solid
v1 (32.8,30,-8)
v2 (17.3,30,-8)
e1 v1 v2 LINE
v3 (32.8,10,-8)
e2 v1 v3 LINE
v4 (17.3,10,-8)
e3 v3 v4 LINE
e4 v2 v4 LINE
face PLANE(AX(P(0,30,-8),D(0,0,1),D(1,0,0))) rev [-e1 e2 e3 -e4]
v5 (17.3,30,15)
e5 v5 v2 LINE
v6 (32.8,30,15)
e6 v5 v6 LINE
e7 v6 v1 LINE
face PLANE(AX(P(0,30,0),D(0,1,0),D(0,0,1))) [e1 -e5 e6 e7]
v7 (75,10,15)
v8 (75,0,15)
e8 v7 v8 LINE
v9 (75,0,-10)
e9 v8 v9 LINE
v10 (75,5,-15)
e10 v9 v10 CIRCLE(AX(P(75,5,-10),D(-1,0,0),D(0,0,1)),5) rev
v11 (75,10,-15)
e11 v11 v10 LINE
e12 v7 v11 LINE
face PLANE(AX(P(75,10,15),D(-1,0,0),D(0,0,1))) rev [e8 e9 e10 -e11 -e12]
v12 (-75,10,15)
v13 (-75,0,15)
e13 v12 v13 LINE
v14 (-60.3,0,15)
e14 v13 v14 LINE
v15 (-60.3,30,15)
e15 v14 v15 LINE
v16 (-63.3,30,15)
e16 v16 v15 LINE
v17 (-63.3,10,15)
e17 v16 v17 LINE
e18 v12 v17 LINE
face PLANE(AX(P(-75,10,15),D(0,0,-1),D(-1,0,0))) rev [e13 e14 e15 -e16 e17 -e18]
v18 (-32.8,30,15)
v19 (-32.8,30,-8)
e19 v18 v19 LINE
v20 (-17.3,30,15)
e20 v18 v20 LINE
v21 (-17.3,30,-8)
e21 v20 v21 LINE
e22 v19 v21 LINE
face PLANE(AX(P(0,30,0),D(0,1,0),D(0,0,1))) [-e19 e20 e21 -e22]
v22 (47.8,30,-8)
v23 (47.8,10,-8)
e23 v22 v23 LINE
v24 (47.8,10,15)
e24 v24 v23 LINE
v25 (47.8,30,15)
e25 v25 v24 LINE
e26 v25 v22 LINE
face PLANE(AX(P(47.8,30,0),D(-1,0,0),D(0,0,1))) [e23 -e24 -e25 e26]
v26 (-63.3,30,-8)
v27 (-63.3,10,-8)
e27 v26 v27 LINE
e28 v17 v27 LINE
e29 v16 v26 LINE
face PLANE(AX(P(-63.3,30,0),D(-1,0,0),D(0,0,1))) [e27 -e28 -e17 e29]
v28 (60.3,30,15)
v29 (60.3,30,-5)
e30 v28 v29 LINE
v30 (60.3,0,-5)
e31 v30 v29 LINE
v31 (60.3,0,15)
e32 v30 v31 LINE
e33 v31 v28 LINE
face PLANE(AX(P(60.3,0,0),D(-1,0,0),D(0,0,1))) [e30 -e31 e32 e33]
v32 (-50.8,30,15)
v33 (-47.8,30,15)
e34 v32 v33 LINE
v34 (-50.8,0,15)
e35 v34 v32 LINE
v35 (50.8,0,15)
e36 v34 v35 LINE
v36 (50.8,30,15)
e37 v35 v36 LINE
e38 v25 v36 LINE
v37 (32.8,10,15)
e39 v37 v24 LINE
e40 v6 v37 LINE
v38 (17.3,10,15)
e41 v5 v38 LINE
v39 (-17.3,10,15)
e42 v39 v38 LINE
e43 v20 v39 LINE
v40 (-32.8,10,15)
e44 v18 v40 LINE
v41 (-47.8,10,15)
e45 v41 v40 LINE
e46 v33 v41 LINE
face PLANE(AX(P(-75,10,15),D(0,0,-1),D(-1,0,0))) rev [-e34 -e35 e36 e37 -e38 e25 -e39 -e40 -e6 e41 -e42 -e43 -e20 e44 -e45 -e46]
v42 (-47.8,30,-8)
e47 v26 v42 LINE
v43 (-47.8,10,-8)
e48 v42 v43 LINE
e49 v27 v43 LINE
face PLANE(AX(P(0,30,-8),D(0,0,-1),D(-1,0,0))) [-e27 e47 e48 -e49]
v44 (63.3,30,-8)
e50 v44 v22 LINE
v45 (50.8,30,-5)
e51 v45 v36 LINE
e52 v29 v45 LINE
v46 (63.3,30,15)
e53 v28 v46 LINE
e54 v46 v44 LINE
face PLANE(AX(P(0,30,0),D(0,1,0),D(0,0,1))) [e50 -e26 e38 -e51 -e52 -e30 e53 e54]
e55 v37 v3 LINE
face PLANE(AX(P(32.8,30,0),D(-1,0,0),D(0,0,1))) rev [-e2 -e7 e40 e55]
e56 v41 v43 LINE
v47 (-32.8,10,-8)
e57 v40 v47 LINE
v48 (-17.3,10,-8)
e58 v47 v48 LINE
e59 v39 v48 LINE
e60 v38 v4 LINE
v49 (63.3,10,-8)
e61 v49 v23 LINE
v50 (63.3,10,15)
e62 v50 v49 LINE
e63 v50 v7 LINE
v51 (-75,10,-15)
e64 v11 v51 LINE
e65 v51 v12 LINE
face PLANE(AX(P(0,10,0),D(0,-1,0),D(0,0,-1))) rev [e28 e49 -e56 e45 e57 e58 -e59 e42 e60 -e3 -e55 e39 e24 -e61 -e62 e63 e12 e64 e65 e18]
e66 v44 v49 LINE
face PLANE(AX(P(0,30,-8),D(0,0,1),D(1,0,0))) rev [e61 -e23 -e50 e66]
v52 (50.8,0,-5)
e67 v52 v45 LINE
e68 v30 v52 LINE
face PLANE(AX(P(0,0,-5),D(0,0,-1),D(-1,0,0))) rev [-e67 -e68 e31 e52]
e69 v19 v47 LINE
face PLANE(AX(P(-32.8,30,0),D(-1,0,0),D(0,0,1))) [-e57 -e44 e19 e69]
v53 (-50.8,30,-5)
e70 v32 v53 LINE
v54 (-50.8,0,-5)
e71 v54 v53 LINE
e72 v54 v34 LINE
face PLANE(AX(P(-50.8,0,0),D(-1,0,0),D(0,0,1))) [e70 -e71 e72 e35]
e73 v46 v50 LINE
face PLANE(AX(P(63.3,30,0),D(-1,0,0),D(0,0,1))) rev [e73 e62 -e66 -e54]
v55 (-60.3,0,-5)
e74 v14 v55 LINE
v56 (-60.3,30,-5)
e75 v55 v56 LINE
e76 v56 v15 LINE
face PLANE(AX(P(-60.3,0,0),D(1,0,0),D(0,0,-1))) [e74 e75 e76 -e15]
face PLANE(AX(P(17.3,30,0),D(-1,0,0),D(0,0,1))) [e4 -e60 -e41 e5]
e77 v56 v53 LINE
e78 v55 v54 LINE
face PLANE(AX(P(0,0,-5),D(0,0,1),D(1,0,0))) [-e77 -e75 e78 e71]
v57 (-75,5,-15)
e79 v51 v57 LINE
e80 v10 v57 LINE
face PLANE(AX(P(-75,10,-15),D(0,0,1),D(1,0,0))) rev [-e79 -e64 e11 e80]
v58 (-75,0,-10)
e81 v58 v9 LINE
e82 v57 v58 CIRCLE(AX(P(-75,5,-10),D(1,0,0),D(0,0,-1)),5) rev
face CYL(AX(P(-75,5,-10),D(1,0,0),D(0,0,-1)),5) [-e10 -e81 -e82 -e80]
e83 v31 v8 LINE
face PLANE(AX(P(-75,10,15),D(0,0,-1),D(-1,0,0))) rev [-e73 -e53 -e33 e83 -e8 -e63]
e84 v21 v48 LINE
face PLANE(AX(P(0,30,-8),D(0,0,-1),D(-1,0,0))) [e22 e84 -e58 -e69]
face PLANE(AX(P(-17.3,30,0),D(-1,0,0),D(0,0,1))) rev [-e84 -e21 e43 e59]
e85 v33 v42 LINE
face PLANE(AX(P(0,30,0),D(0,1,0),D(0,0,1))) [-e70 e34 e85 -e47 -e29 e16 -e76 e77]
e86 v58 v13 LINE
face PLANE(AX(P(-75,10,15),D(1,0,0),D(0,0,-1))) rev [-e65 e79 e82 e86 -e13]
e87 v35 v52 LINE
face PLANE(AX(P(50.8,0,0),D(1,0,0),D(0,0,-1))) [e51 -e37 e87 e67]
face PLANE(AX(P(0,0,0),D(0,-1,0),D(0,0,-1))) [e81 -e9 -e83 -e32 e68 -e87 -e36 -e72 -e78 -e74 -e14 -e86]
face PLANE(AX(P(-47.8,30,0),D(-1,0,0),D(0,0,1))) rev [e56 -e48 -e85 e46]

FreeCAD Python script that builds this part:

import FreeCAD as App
import Part
import Sketcher

V = App.Vector


def edges_at(feature, points):
    """Names of the edges that pass closest to the given points."""
    edges = feature.Shape.Edges
    near = lambda p: min(range(len(edges)), key=lambda i: edges[i].distToShape(Part.Vertex(*p))[0])
    return sorted({f"Edge{near(p) + 1}" for p in points})


def add_polygon(sketch, points):
    """Adds a closed chain of lines whose ends are joined by coincident constraints."""
    first, n = sketch.GeometryCount, len(points)
    for a, b in zip(points, points[1:] + points[:1]):
        sketch.addGeometry(Part.LineSegment(App.Vector(*a, 0), App.Vector(*b, 0)), False)
    for i in range(n):
        sketch.addConstraint(Sketcher.Constraint("Coincident", first + i, 2, first + (i + 1) % n, 1))

doc = App.newDocument("Part")
body = doc.addObject("PartDesign::Body", "Body")

# Sketch on XZ plane
sketch1 = body.newObject("Sketcher::SketchObject", "Sketch")
sketch1.AttachmentSupport = (doc.getObject("XZ_Plane"), [""])
sketch1.MapMode = "FlatFace"
add_polygon(sketch1, [(-75, -15), (-75, 15), (75, 15), (75, -15)])  # lines 0-3
sketch1.addConstraint([
    Sketcher.Constraint("Vertical", 0),
    Sketcher.Constraint("Horizontal", 1),
    Sketcher.Constraint("Vertical", 2),
    Sketcher.Constraint("Horizontal", 3),
    Sketcher.Constraint("Symmetric", 0, 2, 2, 2, -1, 1),
    Sketcher.Constraint("DistanceX", 1, 1, 1, 2, 150.0),
    Sketcher.Constraint("DistanceY", 0, 1, 0, 2, 30.0),
])
pad1 = body.newObject("PartDesign::Pad", "Pad")
pad1.Profile = sketch1
pad1.Length = 10
pad1.Reversed = True

# Sketch on XZ plane
sketch2 = body.newObject("Sketcher::SketchObject", "Sketch001")
sketch2.AttachmentSupport = (doc.getObject("XZ_Plane"), [""])
sketch2.MapMode = "FlatFace"
sketch2.AttachmentOffset = App.Placement(V(0, 0, -10), App.Rotation())
add_polygon(sketch2, [(-60, 15), (-51, 15), (-51, -5), (-60, -5)])  # lines 0-3
add_polygon(sketch2, [(51, 15), (60, 15), (60, -5), (51, -5)])  # lines 4-7
sketch2.addConstraint([
    Sketcher.Constraint("Horizontal", 0),
    Sketcher.Constraint("Vertical", 1),
    Sketcher.Constraint("Horizontal", 2),
    Sketcher.Constraint("Vertical", 3),
    Sketcher.Constraint("Horizontal", 4),
    Sketcher.Constraint("Vertical", 5),
    Sketcher.Constraint("Horizontal", 6),
    Sketcher.Constraint("Vertical", 7),
    Sketcher.Constraint("Symmetric", 3, 2, 4, 2, -2),
    Sketcher.Constraint("Symmetric", 1, 2, 6, 2, -2),
    Sketcher.Constraint("DistanceY", 1, 2, 1, 1, 20.0),
    Sketcher.Constraint("DistanceX", 0, 1, 0, 2, 9.5),
    Sketcher.Constraint("DistanceY", -1, 1, 0, 2, 15.0),
    Sketcher.Constraint("DistanceX", 0, 2, -1, 1, 50.8),
])
pocket1 = body.newObject("PartDesign::Pocket", "Pocket")
pocket1.Profile = sketch2
pocket1.Length = 10
pocket1.Reversed = True

# Sketch on XZ plane
sketch3 = body.newObject("Sketcher::SketchObject", "Sketch002")
sketch3.AttachmentSupport = (doc.getObject("XZ_Plane"), [""])
sketch3.MapMode = "FlatFace"
sketch3.AttachmentOffset = App.Placement(V(0, 0, -10), App.Rotation())
add_polygon(sketch3, [(-63.3, -8), (-63.3, 15), (-60.3, 15), (-60.3, -5), (-50.8, -5), (-50.8, 15), (-47.8, 15), (-47.8, -8)])  # lines 0-7
add_polygon(sketch3, [(-32.8, -8), (-32.8, 15), (-17.3, 15), (-17.3, -8)])  # lines 8-11
add_polygon(sketch3, [(17.3, -8), (17.3, 15), (32.8, 15), (32.8, -8)])  # lines 12-15
add_polygon(sketch3, [(47.8, -8), (47.8, 15), (50.8, 15), (50.8, -5), (60.3, -5), (60.3, 15), (63.3, 15), (63.3, -8)])  # lines 16-23
sketch3.addConstraint([
    Sketcher.Constraint("Vertical", 0),
    Sketcher.Constraint("Horizontal", 1),
    Sketcher.Constraint("Vertical", 2),
    Sketcher.Constraint("Horizontal", 3),
    Sketcher.Constraint("Vertical", 4),
    Sketcher.Constraint("Horizontal", 5),
    Sketcher.Constraint("Vertical", 6),
    Sketcher.Constraint("Horizontal", 7),
    Sketcher.Constraint("Vertical", 8),
    Sketcher.Constraint("Horizontal", 9),
    Sketcher.Constraint("Vertical", 10),
    Sketcher.Constraint("Horizontal", 11),
    Sketcher.Constraint("Vertical", 12),
    Sketcher.Constraint("Horizontal", 13),
    Sketcher.Constraint("Vertical", 14),
    Sketcher.Constraint("Horizontal", 15),
    Sketcher.Constraint("Vertical", 16),
    Sketcher.Constraint("Horizontal", 17),
    Sketcher.Constraint("Vertical", 18),
    Sketcher.Constraint("Horizontal", 19),
    Sketcher.Constraint("Vertical", 20),
    Sketcher.Constraint("Horizontal", 21),
    Sketcher.Constraint("Vertical", 22),
    Sketcher.Constraint("Horizontal", 23),
    Sketcher.Constraint("Symmetric", 9, 2, 12, 2, -2),
    Sketcher.Constraint("Symmetric", 11, 2, 14, 2, -2),
    Sketcher.Constraint("Symmetric", 5, 2, 16, 2, -2),
    Sketcher.Constraint("Symmetric", 3, 2, 18, 2, -2),
    Sketcher.Constraint("Symmetric", 1, 2, 20, 2, -2),
    Sketcher.Constraint("Symmetric", 7, 2, 22, 2, -2),
    Sketcher.Constraint("Horizontal", 1, 2, 4, 2),
    Sketcher.Constraint("Horizontal", 5, 2, 8, 2),
    Sketcher.Constraint("Horizontal", 7, 2, 10, 2),
    Sketcher.Constraint("Equal", 1, 5),
    Sketcher.Constraint("Equal", 7, 9),
    Sketcher.Constraint("DistanceX", 1, 1, 1, 2, 3.0),
    Sketcher.Constraint("DistanceY", 0, 1, 0, 2, 23.0),
    Sketcher.Constraint("DistanceY", 2, 2, 2, 1, 20.0),
    Sketcher.Constraint("DistanceX", 3, 1, 3, 2, 9.5),
    Sketcher.Constraint("DistanceY", -1, 1, 0, 2, 15.0),
    Sketcher.Constraint("DistanceX", 5, 2, 8, 2, 15.0),
    Sketcher.Constraint("DistanceX", 0, 2, -1, 1, 63.3),
])
pad2 = body.newObject("PartDesign::Pad", "Pad001")
pad2.Profile = sketch3
pad2.Length = 20
pad2.Reversed = True
doc.recompute()

fillet = body.newObject("PartDesign::Fillet", "Fillet")
fillet.Base = (pad2, edges_at(pad2, [(0, 0, -15)]))
fillet.Radius = 5

doc.recompute()
